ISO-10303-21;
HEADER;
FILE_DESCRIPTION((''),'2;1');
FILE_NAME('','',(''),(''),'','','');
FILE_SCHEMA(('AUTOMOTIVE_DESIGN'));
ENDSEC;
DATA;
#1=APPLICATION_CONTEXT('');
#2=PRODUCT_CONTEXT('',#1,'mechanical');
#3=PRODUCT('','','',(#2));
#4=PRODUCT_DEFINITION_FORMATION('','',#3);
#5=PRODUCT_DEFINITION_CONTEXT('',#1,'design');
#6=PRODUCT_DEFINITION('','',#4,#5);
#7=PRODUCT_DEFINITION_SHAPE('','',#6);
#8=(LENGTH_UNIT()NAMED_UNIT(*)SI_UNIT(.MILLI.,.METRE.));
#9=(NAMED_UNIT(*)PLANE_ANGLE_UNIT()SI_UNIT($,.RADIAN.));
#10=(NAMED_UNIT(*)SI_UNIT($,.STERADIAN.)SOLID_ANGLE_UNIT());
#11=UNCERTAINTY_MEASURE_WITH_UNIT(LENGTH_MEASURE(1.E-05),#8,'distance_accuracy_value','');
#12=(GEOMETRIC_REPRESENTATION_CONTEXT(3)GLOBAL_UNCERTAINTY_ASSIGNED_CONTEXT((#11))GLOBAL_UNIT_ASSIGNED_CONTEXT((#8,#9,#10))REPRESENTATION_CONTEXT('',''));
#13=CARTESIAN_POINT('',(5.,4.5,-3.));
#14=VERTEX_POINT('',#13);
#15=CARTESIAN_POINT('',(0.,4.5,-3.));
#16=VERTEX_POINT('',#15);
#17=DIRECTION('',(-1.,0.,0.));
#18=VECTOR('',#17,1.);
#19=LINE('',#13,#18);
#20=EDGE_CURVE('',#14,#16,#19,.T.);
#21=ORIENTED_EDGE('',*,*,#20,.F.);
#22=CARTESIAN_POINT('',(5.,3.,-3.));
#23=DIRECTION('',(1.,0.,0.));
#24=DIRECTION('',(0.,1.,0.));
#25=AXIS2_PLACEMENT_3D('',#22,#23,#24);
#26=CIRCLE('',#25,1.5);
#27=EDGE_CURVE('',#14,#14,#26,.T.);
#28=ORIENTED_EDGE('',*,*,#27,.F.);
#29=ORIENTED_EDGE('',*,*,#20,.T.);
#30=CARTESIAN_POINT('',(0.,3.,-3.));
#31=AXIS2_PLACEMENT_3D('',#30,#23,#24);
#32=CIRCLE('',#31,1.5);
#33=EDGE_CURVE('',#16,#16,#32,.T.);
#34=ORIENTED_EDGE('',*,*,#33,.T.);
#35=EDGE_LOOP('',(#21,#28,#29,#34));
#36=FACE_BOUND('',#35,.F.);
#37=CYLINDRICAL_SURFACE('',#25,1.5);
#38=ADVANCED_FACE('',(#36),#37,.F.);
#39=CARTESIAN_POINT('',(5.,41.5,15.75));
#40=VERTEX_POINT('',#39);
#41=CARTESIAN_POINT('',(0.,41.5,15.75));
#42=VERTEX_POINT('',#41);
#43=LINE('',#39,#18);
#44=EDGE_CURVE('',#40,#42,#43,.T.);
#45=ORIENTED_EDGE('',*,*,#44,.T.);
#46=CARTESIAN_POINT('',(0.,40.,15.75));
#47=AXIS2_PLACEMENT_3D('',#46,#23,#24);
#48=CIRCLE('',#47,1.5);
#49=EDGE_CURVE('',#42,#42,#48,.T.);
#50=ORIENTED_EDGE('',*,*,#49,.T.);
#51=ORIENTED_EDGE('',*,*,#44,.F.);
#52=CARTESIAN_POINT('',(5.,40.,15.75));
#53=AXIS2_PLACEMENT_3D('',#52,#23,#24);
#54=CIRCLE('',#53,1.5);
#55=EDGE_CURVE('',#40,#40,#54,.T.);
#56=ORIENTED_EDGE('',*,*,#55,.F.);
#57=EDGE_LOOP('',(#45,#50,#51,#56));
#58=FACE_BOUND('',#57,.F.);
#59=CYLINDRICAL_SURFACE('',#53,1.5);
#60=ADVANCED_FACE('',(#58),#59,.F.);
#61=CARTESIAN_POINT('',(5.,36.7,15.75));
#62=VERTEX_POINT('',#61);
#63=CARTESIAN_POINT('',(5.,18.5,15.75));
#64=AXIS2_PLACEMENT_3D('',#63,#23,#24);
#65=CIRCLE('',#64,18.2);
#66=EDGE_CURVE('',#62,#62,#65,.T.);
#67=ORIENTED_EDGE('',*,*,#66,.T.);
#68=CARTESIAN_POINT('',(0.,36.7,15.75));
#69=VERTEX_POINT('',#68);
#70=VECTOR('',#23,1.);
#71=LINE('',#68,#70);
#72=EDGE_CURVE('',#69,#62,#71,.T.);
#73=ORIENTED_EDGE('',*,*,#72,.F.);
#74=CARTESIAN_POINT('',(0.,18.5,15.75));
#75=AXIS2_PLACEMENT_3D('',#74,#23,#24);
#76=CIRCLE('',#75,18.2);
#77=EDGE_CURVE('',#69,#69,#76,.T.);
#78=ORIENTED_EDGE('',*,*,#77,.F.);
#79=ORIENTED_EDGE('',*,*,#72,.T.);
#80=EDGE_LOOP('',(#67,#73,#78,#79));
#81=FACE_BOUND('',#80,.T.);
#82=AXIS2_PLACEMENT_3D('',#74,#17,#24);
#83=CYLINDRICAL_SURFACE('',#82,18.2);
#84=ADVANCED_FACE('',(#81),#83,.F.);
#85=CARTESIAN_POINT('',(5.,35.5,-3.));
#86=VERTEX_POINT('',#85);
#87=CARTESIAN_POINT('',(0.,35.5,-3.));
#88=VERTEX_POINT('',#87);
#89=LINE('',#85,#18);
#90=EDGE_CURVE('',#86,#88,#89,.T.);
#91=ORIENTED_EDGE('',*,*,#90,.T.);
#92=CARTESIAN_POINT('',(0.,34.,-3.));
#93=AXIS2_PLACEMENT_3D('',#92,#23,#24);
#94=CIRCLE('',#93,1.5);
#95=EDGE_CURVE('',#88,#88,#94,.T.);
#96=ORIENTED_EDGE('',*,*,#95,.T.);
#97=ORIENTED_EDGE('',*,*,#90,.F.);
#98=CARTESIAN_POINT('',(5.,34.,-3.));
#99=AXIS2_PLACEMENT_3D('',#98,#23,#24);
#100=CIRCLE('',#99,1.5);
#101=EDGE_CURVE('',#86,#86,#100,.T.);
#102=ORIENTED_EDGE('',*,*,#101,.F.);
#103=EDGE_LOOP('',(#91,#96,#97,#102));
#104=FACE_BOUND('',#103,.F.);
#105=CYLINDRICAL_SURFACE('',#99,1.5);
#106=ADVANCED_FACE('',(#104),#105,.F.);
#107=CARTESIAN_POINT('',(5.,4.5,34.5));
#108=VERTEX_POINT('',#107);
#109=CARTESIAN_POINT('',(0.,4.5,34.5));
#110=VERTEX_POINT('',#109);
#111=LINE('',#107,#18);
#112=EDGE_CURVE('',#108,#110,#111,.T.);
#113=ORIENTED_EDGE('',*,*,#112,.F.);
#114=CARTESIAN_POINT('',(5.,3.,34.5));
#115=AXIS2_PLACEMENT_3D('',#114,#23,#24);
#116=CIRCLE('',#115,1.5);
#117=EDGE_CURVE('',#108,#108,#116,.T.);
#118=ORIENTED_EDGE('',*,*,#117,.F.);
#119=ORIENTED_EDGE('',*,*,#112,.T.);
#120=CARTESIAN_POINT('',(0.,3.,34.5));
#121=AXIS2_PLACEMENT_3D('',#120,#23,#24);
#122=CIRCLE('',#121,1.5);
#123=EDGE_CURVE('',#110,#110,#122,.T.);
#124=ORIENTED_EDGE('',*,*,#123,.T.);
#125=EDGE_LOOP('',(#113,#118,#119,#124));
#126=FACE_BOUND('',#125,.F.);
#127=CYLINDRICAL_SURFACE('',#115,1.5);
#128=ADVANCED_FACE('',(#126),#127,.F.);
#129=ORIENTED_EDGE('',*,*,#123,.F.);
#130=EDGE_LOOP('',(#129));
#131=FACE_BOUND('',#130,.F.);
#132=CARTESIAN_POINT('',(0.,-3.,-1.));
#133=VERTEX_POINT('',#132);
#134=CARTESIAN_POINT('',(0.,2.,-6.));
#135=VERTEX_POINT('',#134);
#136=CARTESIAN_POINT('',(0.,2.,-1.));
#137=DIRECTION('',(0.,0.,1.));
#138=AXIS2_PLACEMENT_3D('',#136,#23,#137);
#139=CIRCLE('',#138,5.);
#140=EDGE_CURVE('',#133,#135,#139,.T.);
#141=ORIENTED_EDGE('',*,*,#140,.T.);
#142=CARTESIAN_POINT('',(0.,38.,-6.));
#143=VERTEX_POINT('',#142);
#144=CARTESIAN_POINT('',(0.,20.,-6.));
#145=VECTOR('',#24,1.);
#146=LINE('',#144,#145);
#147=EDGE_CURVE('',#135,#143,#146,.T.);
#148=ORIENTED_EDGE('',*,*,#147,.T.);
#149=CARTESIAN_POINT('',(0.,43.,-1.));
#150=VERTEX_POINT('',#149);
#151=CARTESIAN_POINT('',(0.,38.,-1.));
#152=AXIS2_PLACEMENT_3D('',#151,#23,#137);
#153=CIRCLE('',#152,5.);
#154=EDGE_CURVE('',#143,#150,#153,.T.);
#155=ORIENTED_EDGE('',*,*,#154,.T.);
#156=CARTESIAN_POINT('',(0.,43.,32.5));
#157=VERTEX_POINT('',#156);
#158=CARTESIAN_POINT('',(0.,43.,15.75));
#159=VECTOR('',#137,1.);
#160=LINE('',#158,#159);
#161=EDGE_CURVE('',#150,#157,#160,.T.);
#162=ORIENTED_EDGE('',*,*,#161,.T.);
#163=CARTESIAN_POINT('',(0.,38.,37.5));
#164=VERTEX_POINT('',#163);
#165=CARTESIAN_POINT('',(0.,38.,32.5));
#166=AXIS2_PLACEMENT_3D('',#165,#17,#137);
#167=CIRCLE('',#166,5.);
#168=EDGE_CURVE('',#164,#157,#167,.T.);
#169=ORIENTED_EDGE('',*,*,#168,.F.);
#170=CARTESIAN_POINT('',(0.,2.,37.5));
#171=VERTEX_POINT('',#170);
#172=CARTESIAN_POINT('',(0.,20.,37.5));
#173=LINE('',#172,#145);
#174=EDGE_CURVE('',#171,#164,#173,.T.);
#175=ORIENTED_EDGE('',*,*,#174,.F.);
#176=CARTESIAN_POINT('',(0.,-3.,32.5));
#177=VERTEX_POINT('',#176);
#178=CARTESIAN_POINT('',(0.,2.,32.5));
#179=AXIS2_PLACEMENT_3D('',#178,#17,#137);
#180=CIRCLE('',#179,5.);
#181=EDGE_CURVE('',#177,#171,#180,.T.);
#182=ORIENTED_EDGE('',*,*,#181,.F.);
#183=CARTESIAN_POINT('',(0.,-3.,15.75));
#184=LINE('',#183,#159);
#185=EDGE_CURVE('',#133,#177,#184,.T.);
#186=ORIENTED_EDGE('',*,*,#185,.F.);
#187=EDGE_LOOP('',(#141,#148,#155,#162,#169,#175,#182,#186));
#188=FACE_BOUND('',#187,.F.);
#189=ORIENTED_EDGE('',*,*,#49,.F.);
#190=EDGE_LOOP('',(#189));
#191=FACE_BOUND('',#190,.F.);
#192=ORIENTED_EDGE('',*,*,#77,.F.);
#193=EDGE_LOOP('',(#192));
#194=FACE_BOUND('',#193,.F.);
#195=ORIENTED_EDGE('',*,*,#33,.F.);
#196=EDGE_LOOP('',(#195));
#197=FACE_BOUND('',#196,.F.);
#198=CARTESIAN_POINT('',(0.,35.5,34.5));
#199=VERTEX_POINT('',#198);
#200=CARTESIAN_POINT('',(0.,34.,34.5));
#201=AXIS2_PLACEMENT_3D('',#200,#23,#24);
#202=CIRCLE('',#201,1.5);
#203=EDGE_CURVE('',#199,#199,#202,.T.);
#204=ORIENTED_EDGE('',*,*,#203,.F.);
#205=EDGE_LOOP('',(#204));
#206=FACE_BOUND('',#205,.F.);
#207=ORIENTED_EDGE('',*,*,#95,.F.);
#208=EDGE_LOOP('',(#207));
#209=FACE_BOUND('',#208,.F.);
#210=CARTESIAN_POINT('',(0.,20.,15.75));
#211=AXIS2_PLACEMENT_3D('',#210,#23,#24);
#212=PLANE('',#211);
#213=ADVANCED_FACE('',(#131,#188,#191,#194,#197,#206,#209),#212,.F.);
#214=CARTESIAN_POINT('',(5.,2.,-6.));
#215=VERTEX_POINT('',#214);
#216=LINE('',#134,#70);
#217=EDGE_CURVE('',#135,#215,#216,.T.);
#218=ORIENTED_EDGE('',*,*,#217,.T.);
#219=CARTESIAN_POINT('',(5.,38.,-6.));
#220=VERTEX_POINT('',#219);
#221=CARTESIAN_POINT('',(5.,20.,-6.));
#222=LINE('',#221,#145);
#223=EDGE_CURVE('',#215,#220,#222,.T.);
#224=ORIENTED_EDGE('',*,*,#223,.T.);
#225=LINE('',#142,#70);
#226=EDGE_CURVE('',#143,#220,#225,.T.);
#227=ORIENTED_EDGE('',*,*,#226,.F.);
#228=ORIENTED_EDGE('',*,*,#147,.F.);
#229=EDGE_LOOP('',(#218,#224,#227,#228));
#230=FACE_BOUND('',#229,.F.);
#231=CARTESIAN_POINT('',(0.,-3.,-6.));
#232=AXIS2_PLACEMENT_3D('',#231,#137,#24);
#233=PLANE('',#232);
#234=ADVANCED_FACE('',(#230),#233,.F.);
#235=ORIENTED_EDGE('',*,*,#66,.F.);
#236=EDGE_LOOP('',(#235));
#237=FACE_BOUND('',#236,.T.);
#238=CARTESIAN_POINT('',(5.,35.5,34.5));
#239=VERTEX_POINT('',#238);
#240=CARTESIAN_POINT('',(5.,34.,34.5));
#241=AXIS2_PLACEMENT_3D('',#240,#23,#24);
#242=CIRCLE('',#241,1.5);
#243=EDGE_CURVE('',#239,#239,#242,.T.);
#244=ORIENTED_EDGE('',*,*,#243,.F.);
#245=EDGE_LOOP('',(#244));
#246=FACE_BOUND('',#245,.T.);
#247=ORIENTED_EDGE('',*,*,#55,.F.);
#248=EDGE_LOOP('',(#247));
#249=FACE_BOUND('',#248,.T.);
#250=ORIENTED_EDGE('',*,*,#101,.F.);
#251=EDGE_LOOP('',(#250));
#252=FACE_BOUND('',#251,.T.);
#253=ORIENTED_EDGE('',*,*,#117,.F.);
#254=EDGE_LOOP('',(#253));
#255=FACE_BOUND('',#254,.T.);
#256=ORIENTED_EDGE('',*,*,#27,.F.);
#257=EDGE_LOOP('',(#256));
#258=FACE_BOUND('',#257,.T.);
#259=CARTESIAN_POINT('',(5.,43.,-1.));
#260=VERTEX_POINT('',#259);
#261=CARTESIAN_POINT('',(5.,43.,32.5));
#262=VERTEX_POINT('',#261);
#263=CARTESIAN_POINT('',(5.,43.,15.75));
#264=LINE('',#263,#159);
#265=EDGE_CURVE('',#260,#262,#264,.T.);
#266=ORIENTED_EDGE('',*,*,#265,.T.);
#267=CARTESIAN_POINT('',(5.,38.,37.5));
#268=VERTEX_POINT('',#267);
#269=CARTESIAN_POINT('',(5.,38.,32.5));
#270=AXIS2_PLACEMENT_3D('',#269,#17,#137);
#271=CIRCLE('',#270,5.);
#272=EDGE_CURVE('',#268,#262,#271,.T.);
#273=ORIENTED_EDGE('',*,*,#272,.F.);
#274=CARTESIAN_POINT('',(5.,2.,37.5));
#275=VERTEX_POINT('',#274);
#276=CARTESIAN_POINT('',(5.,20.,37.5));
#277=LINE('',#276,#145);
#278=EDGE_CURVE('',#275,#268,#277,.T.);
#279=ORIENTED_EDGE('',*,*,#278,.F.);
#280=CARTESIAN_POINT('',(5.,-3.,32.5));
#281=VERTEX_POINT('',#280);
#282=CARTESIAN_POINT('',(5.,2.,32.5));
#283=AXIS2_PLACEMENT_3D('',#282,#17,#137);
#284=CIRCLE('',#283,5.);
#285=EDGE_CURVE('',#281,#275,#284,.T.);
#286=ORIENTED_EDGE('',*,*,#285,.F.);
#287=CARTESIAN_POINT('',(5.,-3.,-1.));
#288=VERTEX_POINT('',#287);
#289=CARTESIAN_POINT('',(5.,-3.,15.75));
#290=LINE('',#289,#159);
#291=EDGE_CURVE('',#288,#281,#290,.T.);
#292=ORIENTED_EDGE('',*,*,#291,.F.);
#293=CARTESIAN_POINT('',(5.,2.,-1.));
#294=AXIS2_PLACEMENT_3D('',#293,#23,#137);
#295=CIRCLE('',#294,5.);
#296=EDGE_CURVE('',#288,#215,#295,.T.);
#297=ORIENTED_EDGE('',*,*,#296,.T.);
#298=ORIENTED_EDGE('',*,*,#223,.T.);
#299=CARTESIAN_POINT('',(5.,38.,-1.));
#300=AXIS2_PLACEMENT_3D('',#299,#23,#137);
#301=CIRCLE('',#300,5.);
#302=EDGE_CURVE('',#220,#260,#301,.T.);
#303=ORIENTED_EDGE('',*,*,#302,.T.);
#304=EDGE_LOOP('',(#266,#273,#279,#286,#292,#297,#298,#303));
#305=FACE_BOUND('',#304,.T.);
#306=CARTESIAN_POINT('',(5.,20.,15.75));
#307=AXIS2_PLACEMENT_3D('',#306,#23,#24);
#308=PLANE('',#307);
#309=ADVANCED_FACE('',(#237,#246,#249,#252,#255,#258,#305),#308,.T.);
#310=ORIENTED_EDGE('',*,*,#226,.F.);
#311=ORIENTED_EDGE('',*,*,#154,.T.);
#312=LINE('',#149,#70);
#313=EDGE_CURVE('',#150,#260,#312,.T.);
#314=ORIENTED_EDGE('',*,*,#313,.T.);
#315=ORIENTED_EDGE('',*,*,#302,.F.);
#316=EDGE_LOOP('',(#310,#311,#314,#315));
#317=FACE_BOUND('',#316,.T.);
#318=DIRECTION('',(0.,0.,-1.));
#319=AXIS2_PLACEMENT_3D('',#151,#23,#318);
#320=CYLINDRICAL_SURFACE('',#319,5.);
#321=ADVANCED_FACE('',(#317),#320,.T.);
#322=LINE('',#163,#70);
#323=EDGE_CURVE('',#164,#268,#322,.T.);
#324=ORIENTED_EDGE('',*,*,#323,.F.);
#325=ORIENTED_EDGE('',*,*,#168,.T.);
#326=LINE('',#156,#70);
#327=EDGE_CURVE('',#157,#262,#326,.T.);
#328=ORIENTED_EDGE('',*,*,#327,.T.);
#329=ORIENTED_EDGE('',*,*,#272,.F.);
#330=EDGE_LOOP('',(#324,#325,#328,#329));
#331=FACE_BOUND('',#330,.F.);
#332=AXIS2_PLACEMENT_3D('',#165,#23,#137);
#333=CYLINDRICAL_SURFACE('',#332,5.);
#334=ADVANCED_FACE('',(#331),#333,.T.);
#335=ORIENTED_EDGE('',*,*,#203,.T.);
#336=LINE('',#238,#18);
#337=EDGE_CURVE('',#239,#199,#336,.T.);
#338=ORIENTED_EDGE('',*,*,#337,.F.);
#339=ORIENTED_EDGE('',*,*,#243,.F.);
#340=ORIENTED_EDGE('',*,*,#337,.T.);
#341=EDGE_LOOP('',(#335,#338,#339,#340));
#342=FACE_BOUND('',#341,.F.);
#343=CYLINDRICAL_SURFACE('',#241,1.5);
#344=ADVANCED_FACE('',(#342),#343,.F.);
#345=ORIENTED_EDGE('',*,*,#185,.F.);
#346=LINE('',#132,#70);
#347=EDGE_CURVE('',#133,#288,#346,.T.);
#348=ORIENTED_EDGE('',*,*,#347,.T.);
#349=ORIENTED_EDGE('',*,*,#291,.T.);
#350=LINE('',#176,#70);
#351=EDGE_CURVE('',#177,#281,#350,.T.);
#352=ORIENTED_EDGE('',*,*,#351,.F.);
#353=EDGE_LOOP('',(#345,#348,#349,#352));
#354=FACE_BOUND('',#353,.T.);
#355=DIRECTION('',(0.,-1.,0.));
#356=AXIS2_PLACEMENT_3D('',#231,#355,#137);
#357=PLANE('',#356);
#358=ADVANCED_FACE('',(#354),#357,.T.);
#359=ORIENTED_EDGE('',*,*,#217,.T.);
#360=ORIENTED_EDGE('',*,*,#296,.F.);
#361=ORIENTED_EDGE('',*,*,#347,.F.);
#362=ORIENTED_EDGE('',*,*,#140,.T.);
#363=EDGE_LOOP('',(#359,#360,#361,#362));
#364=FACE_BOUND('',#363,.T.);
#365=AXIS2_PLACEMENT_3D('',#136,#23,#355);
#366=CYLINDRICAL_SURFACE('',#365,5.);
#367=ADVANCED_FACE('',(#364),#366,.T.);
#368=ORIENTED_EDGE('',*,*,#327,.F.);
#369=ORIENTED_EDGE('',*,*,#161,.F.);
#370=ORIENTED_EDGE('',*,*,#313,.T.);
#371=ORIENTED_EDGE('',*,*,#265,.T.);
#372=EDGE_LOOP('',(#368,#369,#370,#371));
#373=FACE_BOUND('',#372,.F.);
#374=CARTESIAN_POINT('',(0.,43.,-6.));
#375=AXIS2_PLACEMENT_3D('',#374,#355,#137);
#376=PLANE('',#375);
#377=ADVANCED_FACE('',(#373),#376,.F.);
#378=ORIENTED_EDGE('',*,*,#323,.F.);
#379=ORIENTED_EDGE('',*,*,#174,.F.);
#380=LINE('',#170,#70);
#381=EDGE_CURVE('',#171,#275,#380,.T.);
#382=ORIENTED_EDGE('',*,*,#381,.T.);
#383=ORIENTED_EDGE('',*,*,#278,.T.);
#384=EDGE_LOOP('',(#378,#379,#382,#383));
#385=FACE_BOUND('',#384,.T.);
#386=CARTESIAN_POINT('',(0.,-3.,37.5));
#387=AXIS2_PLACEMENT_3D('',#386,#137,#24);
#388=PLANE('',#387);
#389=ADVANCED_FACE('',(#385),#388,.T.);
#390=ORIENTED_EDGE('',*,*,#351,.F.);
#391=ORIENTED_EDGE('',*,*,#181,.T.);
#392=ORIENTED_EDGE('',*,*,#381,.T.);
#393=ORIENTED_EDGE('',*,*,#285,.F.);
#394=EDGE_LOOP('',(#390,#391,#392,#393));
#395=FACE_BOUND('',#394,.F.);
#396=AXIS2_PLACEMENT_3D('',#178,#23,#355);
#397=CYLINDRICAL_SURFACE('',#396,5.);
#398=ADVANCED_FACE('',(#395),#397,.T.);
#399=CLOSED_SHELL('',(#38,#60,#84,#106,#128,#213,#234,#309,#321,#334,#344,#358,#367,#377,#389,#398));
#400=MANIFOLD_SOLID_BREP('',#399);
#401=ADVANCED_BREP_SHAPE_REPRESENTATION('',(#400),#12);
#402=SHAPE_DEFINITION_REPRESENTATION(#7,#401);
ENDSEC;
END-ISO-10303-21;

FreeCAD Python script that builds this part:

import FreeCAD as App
import Part
import Sketcher


def edges_at(feature, points):
    """Names of the edges that pass closest to the given points."""
    edges = feature.Shape.Edges
    near = lambda p: min(range(len(edges)), key=lambda i: edges[i].distToShape(Part.Vertex(*p))[0])
    return sorted({f"Edge{near(p) + 1}" for p in points})


def add_polygon(sketch, points):
    """Adds a closed chain of lines whose ends are joined by coincident constraints."""
    first, n = sketch.GeometryCount, len(points)
    for a, b in zip(points, points[1:] + points[:1]):
        sketch.addGeometry(Part.LineSegment(App.Vector(*a, 0), App.Vector(*b, 0)), False)
    for i in range(n):
        sketch.addConstraint(Sketcher.Constraint("Coincident", first + i, 2, first + (i + 1) % n, 1))

doc = App.newDocument("Part")
body = doc.addObject("PartDesign::Body", "Body")

# Sketch on YZ plane
sketch1 = body.newObject("Sketcher::SketchObject", "Sketch")
sketch1.AttachmentSupport = (doc.getObject("YZ_Plane"), [""])
sketch1.MapMode = "FlatFace"
add_polygon(sketch1, [(-3, 38), (-3, -6), (43, -6), (43, 38)])  # lines 0-3
sketch1.addGeometry(Part.Circle(App.Vector(18, 16, 0), App.Vector(0, 0, 1), 18), False)  # 4
sketch1.addConstraint([
    Sketcher.Constraint("Vertical", 0),
    Sketcher.Constraint("Horizontal", 1),
    Sketcher.Constraint("Vertical", 2),
    Sketcher.Constraint("Horizontal", 3),
    Sketcher.Constraint("Diameter", 4, 36.4),
    Sketcher.Constraint("DistanceX", 1, 1, 1, 2, 46.0),
    Sketcher.Constraint("DistanceY", 0, 2, 0, 1, 43.5),
    Sketcher.Constraint("DistanceX", 0, 2, -1, 1, 3.0),
    Sketcher.Constraint("DistanceY", 0, 2, -1, 1, 6.0),
    Sketcher.Constraint("DistanceX", -1, 1, 4, 3, 18.5),
    Sketcher.Constraint("DistanceY", -1, 1, 4, 3, 15.75),
])
pad1 = body.newObject("PartDesign::Pad", "Pad")
pad1.Profile = sketch1
pad1.Length = 5

# Sketch on YZ plane
sketch2 = body.newObject("Sketcher::SketchObject", "Sketch001")
sketch2.AttachmentSupport = (doc.getObject("YZ_Plane"), [""])
sketch2.MapMode = "FlatFace"
sketch2.AttachmentOffset = App.Placement(App.Vector(0, 0, 5), App.Rotation())
sketch2.addGeometry([
    Part.Circle(App.Vector(3, 34.5, 0), App.Vector(0, 0, 1), 1.5),  # 0
    Part.Circle(App.Vector(34, 34.5, 0), App.Vector(0, 0, 1), 1.5),  # 1
    Part.Circle(App.Vector(40, 15.8, 0), App.Vector(0, 0, 1), 1.5),  # 2
    Part.Circle(App.Vector(34, -3, 0), App.Vector(0, 0, 1), 1.5),  # 3
    Part.Circle(App.Vector(3, -3, 0), App.Vector(0, 0, 1), 1.5),  # 4
], False)
sketch2.addConstraint([
    Sketcher.Constraint("Equal", 0, 1),
    Sketcher.Constraint("Equal", 1, 2),
    Sketcher.Constraint("Equal", 2, 3),
    Sketcher.Constraint("Equal", 3, 4),
    Sketcher.Constraint("Horizontal", 0, 3, 1, 3),
    Sketcher.Constraint("Horizontal", 3, 3, 4, 3),
    Sketcher.Constraint("Vertical", 1, 3, 3, 3),
    Sketcher.Constraint("Vertical", 0, 3, 4, 3),
    Sketcher.Constraint("Diameter", 0, 3.0),
    Sketcher.Constraint("DistanceX", -1, 1, 0, 3, 3.0),
    Sketcher.Constraint("DistanceX", -1, 1, 1, 3, 34.0),
    Sketcher.Constraint("DistanceX", -1, 1, 2, 3, 40.0),
    Sketcher.Constraint("DistanceY", 3, 3, -1, 1, 3.0),
    Sketcher.Constraint("DistanceY", -1, 1, 0, 3, 34.5),
    Sketcher.Constraint("DistanceY", -1, 1, 2, 3, 15.75),
])
pocket1 = body.newObject("PartDesign::Pocket", "Pocket")
pocket1.Profile = sketch2
pocket1.Type = "ThroughAll"
doc.recompute()

fillet = body.newObject("PartDesign::Fillet", "Fillet")
fillet.Base = (pocket1, edges_at(pocket1, [(2.5, 43, -6), (2.5, -3, -6)]))
fillet.Radius = 5
doc.recompute()

fillet2 = body.newObject("PartDesign::Fillet", "Fillet001")
fillet2.Base = (fillet, edges_at(fillet, [(2.5, 43, 37.5), (2.5, -3, 37.5)]))
fillet2.Radius = 5

doc.recompute()
